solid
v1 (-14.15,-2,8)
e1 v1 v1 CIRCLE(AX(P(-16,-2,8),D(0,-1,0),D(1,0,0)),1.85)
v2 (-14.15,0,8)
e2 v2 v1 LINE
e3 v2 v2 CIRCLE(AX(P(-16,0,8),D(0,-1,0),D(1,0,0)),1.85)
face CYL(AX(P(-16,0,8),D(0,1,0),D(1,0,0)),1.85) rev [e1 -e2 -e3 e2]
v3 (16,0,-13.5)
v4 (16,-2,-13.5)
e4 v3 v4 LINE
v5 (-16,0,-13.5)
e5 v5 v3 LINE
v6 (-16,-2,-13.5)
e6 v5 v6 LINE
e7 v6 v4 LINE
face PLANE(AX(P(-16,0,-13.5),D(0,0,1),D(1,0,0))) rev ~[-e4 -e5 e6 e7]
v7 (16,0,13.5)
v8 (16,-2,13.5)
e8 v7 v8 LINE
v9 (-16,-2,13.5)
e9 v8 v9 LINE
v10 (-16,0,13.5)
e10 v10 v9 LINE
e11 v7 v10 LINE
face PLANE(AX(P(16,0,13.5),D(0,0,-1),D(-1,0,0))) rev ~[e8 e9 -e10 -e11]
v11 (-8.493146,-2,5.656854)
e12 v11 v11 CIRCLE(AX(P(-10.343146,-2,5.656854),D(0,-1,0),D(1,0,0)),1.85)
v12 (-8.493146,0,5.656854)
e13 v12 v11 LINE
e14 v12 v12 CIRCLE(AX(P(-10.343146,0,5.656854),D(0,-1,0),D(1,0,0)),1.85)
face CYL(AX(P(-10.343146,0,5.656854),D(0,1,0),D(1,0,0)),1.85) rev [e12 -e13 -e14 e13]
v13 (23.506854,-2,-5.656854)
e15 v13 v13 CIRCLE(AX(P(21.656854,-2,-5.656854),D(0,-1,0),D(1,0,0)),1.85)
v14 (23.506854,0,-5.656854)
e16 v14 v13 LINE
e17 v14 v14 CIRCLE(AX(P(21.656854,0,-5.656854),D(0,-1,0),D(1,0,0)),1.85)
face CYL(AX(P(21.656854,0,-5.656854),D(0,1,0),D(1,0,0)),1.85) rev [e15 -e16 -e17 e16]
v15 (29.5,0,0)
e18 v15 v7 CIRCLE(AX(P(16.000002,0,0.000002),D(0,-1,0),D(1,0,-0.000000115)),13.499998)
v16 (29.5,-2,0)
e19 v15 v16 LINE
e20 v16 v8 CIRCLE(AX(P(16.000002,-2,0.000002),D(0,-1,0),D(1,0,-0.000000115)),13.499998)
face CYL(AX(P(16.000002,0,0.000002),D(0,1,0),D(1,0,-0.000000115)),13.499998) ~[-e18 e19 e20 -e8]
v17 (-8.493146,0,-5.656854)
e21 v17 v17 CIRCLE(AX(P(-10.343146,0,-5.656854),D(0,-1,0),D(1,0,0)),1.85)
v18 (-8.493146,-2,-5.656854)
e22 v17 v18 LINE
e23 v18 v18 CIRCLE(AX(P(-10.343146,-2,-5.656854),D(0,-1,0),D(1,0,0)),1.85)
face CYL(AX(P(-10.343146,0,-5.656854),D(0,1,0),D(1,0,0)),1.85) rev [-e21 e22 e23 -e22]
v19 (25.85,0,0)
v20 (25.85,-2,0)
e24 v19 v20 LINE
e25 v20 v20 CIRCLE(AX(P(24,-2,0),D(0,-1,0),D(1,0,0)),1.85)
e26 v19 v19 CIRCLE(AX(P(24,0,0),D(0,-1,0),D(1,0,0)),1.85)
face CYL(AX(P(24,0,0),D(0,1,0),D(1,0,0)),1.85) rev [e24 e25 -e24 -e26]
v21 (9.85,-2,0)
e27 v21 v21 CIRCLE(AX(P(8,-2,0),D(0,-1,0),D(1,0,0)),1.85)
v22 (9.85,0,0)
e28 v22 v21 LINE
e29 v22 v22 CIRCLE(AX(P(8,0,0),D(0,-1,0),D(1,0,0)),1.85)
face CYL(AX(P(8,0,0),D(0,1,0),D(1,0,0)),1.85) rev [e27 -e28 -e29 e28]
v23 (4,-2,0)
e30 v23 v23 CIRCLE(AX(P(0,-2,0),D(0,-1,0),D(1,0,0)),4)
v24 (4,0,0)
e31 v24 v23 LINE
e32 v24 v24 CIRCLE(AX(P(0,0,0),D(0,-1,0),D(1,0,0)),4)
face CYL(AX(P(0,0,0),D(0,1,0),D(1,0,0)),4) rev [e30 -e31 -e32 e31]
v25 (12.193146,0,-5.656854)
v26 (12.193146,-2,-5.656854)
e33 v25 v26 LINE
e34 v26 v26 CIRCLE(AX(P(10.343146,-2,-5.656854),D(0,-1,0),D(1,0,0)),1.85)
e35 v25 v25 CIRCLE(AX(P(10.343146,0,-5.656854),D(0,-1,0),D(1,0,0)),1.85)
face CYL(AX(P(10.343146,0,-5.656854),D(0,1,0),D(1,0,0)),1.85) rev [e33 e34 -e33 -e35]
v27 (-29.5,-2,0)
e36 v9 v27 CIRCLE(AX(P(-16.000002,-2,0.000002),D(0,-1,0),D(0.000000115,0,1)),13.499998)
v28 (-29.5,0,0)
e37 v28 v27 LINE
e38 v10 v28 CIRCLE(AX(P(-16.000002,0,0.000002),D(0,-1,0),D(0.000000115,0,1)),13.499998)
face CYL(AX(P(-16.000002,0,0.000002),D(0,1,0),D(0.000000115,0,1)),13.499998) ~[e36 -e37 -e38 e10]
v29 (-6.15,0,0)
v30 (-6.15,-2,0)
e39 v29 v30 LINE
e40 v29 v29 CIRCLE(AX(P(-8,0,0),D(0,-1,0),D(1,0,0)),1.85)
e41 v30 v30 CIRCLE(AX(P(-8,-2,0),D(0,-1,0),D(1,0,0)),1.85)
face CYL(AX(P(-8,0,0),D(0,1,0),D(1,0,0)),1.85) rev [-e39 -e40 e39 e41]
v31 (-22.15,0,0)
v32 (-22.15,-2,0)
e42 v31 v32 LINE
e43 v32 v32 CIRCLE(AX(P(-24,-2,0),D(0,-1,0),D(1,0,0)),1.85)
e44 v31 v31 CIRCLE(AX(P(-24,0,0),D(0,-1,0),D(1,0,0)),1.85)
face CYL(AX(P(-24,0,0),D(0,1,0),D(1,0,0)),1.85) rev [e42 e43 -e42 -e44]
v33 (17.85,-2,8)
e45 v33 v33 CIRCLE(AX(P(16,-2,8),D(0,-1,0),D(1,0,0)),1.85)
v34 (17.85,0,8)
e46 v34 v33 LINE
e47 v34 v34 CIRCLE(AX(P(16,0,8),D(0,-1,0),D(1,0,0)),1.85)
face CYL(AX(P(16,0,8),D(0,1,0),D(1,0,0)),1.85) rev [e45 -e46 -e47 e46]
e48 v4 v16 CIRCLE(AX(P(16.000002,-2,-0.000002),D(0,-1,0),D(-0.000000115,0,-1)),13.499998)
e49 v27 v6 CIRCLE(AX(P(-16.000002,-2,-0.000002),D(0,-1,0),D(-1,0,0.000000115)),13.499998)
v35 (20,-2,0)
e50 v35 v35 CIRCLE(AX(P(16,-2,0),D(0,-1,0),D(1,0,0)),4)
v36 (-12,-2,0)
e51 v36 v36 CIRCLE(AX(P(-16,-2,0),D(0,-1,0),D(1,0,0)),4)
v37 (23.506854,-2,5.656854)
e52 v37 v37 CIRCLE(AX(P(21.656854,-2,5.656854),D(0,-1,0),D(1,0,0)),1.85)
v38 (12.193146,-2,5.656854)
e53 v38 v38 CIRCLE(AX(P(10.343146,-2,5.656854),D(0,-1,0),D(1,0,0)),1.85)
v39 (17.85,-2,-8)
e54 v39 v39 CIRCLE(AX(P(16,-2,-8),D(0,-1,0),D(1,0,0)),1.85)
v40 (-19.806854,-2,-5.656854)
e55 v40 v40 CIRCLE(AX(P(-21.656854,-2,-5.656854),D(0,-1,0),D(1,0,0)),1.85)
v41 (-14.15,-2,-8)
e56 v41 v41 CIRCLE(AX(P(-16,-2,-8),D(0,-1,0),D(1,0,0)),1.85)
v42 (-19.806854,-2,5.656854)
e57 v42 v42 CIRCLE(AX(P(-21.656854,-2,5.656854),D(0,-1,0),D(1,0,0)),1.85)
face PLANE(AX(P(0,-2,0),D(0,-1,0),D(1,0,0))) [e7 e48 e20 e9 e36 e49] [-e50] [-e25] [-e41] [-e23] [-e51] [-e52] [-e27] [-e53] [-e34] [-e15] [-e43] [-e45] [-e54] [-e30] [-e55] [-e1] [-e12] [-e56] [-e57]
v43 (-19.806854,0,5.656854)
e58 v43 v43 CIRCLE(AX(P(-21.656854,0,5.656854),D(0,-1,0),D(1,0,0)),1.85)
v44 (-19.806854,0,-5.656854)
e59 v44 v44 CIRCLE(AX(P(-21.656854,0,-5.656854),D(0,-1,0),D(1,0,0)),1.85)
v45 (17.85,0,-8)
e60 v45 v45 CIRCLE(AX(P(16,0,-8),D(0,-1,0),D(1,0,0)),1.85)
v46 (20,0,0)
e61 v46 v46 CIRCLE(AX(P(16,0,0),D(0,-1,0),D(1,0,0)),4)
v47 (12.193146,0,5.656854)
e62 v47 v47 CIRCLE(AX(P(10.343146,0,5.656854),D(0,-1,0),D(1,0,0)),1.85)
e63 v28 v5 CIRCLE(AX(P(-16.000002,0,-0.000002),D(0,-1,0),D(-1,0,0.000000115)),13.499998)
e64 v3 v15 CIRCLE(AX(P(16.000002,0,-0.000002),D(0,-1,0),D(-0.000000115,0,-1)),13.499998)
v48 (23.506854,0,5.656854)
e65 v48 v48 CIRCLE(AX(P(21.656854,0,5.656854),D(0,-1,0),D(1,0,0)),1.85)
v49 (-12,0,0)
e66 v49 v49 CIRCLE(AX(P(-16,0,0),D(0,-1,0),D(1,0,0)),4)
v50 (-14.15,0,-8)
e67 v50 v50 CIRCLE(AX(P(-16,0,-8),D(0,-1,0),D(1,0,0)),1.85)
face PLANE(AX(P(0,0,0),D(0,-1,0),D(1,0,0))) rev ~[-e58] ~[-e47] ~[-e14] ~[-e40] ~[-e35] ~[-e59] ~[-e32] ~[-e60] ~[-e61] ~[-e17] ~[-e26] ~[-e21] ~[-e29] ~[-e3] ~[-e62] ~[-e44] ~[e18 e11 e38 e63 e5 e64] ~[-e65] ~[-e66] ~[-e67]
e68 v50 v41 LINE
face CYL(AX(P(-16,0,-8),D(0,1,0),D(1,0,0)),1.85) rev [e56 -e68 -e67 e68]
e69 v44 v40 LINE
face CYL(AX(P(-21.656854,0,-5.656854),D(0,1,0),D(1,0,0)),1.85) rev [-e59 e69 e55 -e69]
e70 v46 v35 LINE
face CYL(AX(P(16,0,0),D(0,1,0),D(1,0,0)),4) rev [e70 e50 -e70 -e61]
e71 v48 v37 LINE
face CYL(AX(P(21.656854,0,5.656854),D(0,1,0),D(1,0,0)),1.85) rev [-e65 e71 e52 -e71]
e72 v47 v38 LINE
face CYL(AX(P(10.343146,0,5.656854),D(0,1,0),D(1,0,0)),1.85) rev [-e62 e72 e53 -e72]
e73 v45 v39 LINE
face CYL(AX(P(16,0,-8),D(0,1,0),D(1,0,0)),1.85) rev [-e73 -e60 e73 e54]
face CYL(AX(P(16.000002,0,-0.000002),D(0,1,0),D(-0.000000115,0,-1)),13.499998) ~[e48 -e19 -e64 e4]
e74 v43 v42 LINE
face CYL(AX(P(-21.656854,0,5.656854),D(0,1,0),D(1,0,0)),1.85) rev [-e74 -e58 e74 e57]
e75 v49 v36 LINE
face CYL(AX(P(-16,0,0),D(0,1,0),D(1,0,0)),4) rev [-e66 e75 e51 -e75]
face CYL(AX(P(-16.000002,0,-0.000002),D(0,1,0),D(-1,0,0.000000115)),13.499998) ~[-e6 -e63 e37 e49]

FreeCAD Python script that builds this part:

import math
import FreeCAD as App
import Part
import Sketcher
Q = App.Units.Quantity

doc = App.newDocument("Part")
params = doc.addObject("Spreadsheet::Sheet", "Params")
for row, (alias, value) in enumerate([
    ("sketch1_diameter", "8 mm"),
    ("sketch1_diameter2", "3.7 mm"),
    ("sketch1_radius", "13.499998 mm"),
    ("sketch1_width", "32 mm"),
    ("pad1_length", "2 mm"),
], start=1):
    params.set(f"A{row}", alias)
    params.set(f"B{row}", "=" + value)
    params.setAlias(f"B{row}", alias)

body = doc.addObject("PartDesign::Body", "Body")

sketch1 = body.newObject("Sketcher::SketchObject", "Sketch")
sketch1.AttachmentSupport = (doc.getObject("XZ_Plane"), [""])
sketch1.MapMode = "FlatFace"
sketch1.addGeometry([
    Part.ArcOfCircle(Part.Circle(App.Vector(16.000002, 0.000002, 0), App.Vector(0, 0, 1), 13.499998), math.radians(-0.000007), math.radians(90.000007)),
    Part.LineSegment(App.Vector(16, 13.5, 0), App.Vector(-16, 13.5, 0)),
    Part.ArcOfCircle(Part.Circle(App.Vector(-16.000002, 0.000002, 0), App.Vector(0, 0, 1), 13.499998), math.radians(89.999993), math.radians(180.000007)),
    Part.ArcOfCircle(Part.Circle(App.Vector(-16.000002, -0.000002, 0), App.Vector(0, 0, 1), 13.499998), math.radians(179.999993), math.radians(270.000007)),
    Part.LineSegment(App.Vector(-16, -13.5, 0), App.Vector(16, -13.5, 0)),
    Part.ArcOfCircle(Part.Circle(App.Vector(16.000002, -0.000002, 0), App.Vector(0, 0, 1), 13.499998), math.radians(-90.000007), math.radians(0.000007)),
    Part.Circle(App.Vector(-16, -8, 0), App.Vector(0, 0, 1), 1.85),
    Part.Circle(App.Vector(-21.656854, -5.656854, 0), App.Vector(0, 0, 1), 1.85),
    Part.Circle(App.Vector(-10.343146, -5.656854, 0), App.Vector(0, 0, 1), 1.85),
    Part.Circle(App.Vector(10.343146, -5.656854, 0), App.Vector(0, 0, 1), 1.85),
    Part.Circle(App.Vector(16, -8, 0), App.Vector(0, 0, 1), 1.85),
    Part.Circle(App.Vector(21.656854, -5.656854, 0), App.Vector(0, 0, 1), 1.85),
    Part.Circle(App.Vector(-24, 0, 0), App.Vector(0, 0, 1), 1.85),
    Part.Circle(App.Vector(-16, 0, 0), App.Vector(0, 0, 1), 4),
    Part.Circle(App.Vector(-8, 0, 0), App.Vector(0, 0, 1), 1.85),
    Part.Circle(App.Vector(-21.656854, 5.656854, 0), App.Vector(0, 0, 1), 1.85),
    Part.Circle(App.Vector(-16, 8, 0), App.Vector(0, 0, 1), 1.85),
    Part.Circle(App.Vector(-10.343146, 5.656854, 0), App.Vector(0, 0, 1), 1.85),
    Part.Circle(App.Vector(0, 0, 0), App.Vector(0, 0, 1), 4),
    Part.Circle(App.Vector(8, 0, 0), App.Vector(0, 0, 1), 1.85),
    Part.Circle(App.Vector(16, 0, 0), App.Vector(0, 0, 1), 4),
    Part.Circle(App.Vector(24, 0, 0), App.Vector(0, 0, 1), 1.85),
    Part.Circle(App.Vector(10.343146, 5.656854, 0), App.Vector(0, 0, 1), 1.85),
    Part.Circle(App.Vector(21.656854, 5.656854, 0), App.Vector(0, 0, 1), 1.85),
    Part.Circle(App.Vector(16, 8, 0), App.Vector(0, 0, 1), 1.85),
], False)
sketch1.addConstraint([
    Sketcher.Constraint("Tangent", 0, 2, 1, 1),
    Sketcher.Constraint("Tangent", 1, 2, 2, 1),
    Sketcher.Constraint("Tangent", 2, 2, 3, 1),
    Sketcher.Constraint("Tangent", 3, 2, 4, 1),
    Sketcher.Constraint("Tangent", 4, 2, 5, 1),
    Sketcher.Constraint("Tangent", 5, 2, 0, 1),
    Sketcher.Constraint("Horizontal", 1),
    Sketcher.Constraint("Horizontal", 4),
    Sketcher.Constraint("Coincident", 18, 3, -1, 1),
    Sketcher.Constraint("Coincident", 13, 3, 2, 3),
    Sketcher.Constraint("Coincident", 20, 3, 0, 3),
    Sketcher.Constraint("Equal", 0, 2),
    Sketcher.Constraint("Equal", 2, 3),
    Sketcher.Constraint("Equal", 6, 7),
    Sketcher.Constraint("Equal", 7, 8),
    Sketcher.Constraint("Equal", 8, 9),
    Sketcher.Constraint("Equal", 9, 10),
    Sketcher.Constraint("Equal", 10, 11),
    Sketcher.Constraint("Equal", 11, 12),
    Sketcher.Constraint("Equal", 12, 14),
    Sketcher.Constraint("Equal", 14, 15),
    Sketcher.Constraint("Equal", 15, 16),
    Sketcher.Constraint("Equal", 16, 17),
    Sketcher.Constraint("Equal", 13, 18),
    Sketcher.Constraint("Equal", 17, 19),
    Sketcher.Constraint("Equal", 18, 20),
    Sketcher.Constraint("Equal", 19, 21),
    Sketcher.Constraint("Equal", 21, 22),
    Sketcher.Constraint("Equal", 22, 23),
    Sketcher.Constraint("Equal", 23, 24),
    Sketcher.Constraint("Symmetric", 0, 3, 2, 3, -1, 1),
    Sketcher.Constraint("Symmetric", 11, 3, 15, 3, -1, 1),
    Sketcher.Constraint("Symmetric", 10, 3, 16, 3, -1, 1),
    Sketcher.Constraint("Symmetric", 9, 3, 17, 3, -1, 1),
    Sketcher.Constraint("Symmetric", 14, 3, 19, 3, -1, 1),
    Sketcher.Constraint("Symmetric", 12, 3, 21, 3, -1, 1),
    Sketcher.Constraint("Symmetric", 8, 3, 22, 3, -1, 1),
    Sketcher.Constraint("Symmetric", 7, 3, 23, 3, -1, 1),
    Sketcher.Constraint("Symmetric", 6, 3, 24, 3, -1, 1),
    Sketcher.Constraint("Symmetric", 8, 3, 9, 3, -2),
    Sketcher.Constraint("Symmetric", 6, 3, 10, 3, -2),
    Sketcher.Constraint("Symmetric", 7, 3, 11, 3, -2),
    Sketcher.Constraint("PointOnObject", 12, 3, -1),
    Sketcher.Constraint("PointOnObject", 14, 3, -1),
    Sketcher.Constraint("PointOnObject", 2, 2, -1),
    Sketcher.Constraint("PointOnObject", 5, 2, -1),
    Sketcher.Constraint("Horizontal", 7, 3, 8, 3),
    Sketcher.Constraint("Vertical", 3, 3, 6, 3),
    Sketcher.Constraint("Diameter", 13, Q("8 mm")),
    Sketcher.Constraint("Diameter", 6, Q("3.7 mm")),
    Sketcher.Constraint("Radius", 0, Q("13.499998 mm")),
    Sketcher.Constraint("DistanceX", 1, 2, 1, 1, Q("32 mm")),
    Sketcher.Constraint("DistanceY", 6, 3, -1, 1, Q("8 mm")),
    Sketcher.Constraint("DistanceX", 12, 3, -1, 1, Q("24 mm")),
    Sketcher.Constraint("DistanceX", 14, 3, -1, 1, Q("8 mm")),
    Sketcher.Constraint("DistanceX", 8, 3, 11, 3, Q("32 mm")),
    Sketcher.Constraint("DistanceX", 7, 3, -1, 1, Q("21.656854 mm")),
    Sketcher.Constraint("DistanceY", 7, 3, -1, 1, Q("5.656854 mm")),
])
sketch1.setExpression("Constraints[48]", "Params.sketch1_diameter")
sketch1.setExpression("Constraints[49]", "Params.sketch1_diameter2")
sketch1.setExpression("Constraints[50]", "Params.sketch1_radius")
sketch1.setExpression("Constraints[51]", "Params.sketch1_width")
pad1 = body.newObject("PartDesign::Pad", "Pad")
pad1.Profile = sketch1
pad1.setExpression("Length", "Params.pad1_length")

doc.recompute()
